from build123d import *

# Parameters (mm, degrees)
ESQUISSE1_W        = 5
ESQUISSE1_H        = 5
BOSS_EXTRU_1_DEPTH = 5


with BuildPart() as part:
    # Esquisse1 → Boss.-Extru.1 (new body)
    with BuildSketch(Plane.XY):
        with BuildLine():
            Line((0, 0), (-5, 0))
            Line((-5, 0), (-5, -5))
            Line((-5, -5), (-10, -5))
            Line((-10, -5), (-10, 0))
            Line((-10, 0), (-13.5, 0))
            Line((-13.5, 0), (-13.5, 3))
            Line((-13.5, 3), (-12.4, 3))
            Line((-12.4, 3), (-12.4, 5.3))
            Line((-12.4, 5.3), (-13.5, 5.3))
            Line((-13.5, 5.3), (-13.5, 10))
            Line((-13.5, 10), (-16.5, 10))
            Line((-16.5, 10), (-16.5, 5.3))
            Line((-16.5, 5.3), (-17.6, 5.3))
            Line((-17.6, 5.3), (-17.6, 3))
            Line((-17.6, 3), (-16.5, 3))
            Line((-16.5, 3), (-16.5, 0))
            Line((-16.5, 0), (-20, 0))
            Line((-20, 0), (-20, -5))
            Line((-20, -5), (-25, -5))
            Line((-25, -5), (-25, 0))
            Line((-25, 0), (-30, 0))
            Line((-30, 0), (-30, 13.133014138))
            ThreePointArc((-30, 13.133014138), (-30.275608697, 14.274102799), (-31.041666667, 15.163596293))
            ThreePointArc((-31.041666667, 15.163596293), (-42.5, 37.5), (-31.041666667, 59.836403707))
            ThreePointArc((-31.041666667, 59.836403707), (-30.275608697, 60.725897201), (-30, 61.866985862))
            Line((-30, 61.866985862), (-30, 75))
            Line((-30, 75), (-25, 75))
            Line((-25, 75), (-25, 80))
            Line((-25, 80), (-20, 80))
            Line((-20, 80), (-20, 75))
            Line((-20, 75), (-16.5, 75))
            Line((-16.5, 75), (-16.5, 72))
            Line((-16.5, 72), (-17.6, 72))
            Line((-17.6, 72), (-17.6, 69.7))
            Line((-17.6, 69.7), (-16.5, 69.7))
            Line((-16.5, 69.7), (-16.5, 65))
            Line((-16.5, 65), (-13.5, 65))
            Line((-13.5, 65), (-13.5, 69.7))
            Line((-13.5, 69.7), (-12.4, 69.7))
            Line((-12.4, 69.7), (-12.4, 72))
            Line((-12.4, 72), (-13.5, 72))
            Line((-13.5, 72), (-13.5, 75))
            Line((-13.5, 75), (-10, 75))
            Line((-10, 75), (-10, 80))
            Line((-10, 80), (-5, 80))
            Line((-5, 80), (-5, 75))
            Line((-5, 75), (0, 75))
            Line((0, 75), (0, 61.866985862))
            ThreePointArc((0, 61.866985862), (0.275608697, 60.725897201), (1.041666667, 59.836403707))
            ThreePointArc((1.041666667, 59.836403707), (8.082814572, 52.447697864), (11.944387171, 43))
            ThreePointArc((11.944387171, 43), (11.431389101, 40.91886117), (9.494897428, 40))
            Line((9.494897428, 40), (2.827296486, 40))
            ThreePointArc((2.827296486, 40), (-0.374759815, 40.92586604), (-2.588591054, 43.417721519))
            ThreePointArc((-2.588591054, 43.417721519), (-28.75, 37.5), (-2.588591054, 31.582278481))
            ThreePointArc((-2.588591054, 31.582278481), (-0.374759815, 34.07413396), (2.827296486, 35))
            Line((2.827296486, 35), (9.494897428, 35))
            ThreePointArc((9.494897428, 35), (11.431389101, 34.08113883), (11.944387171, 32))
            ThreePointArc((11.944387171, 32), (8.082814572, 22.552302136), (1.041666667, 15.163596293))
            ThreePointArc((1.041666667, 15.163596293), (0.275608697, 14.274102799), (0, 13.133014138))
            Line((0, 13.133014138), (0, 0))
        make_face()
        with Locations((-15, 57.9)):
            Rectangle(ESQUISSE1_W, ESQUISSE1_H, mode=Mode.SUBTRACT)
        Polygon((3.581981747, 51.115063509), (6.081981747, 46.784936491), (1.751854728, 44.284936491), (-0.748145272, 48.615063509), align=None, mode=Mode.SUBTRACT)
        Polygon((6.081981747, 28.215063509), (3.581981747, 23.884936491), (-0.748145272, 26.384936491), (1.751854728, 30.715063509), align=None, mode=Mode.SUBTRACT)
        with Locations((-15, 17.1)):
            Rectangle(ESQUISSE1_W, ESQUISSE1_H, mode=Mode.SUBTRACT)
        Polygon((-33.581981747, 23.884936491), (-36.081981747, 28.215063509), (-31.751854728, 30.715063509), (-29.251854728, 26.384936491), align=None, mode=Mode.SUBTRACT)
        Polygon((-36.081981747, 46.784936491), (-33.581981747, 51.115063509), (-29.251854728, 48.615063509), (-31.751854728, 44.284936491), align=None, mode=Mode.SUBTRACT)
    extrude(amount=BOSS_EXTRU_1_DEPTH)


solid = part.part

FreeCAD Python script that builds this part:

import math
import FreeCAD as App
import Part
import Sketcher

V = App.Vector
Q = App.Units.Quantity

doc = App.newDocument("Part")
body = doc.addObject("PartDesign::Body", "Body")

# Sketch on XY plane
sketch1 = body.newObject("Sketcher::SketchObject", "Sketch")
sketch1.AttachmentSupport = (doc.getObject("XY_Plane"), [""])
sketch1.MapMode = "FlatFace"
sketch1.addGeometry([
    Part.LineSegment(V(-5, 0, 0), V(0, 0, 0)),  # 0
    Part.LineSegment(V(0, 0, 0), V(0, 13.133014, 0)),  # 1
    Part.ArcOfCircle(Part.Circle(V(2.5, 13.133014, 0), V(0, 0, 1), 2.5), math.radians(125.685335), math.radians(180)),  # 2
    Part.ArcOfCircle(Part.Circle(V(-15, 37.5, 0), V(0, 0, 1), 27.5), math.radians(-54.314665), math.radians(-11.536959)),  # 3
    Part.ArcOfCircle(Part.Circle(V(9.494897, 32.5, 0), V(0, 0, 1), 2.5), math.radians(-11.536959), math.radians(90)),  # 4
    Part.LineSegment(V(9.494897, 35, 0), V(2.827296, 35, 0)),  # 5
    Part.ArcOfCircle(Part.Circle(V(2.827296, 29, 0), V(0, 0, 1), 6), math.radians(90), math.radians(154.508338)),  # 6
    Part.ArcOfCircle(Part.Circle(V(-15, 37.5, 0), V(0, 0, 1), 13.75), math.radians(25.491662), math.radians(334.508338)),  # 7
    Part.ArcOfCircle(Part.Circle(V(2.827296, 46, 0), V(0, 0, 1), 6), math.radians(-154.508338), math.radians(-90)),  # 8
    Part.LineSegment(V(2.827296, 40, 0), V(9.494897, 40, 0)),  # 9
    Part.ArcOfCircle(Part.Circle(V(9.494897, 42.5, 0), V(0, 0, 1), 2.5), math.radians(-90), math.radians(11.536959)),  # 10
    Part.ArcOfCircle(Part.Circle(V(-15, 37.5, 0), V(0, 0, 1), 27.5), math.radians(11.536959), math.radians(54.314665)),  # 11
    Part.ArcOfCircle(Part.Circle(V(2.5, 61.866986, 0), V(0, 0, 1), 2.5), math.radians(180), math.radians(234.314665)),  # 12
    Part.LineSegment(V(0, 61.866986, 0), V(0, 75, 0)),  # 13
    Part.LineSegment(V(0, 75, 0), V(-5, 75, 0)),  # 14
    Part.LineSegment(V(-5, 75, 0), V(-5, 80, 0)),  # 15
    Part.LineSegment(V(-5, 80, 0), V(-10, 80, 0)),  # 16
    Part.LineSegment(V(-10, 80, 0), V(-10, 75, 0)),  # 17
    Part.LineSegment(V(-10, 75, 0), V(-13.5, 75, 0)),  # 18
    Part.LineSegment(V(-13.5, 75, 0), V(-13.5, 72, 0)),  # 19
    Part.LineSegment(V(-13.5, 72, 0), V(-12.4, 72, 0)),  # 20
    Part.LineSegment(V(-12.4, 72, 0), V(-12.4, 69.7, 0)),  # 21
    Part.LineSegment(V(-12.4, 69.7, 0), V(-13.5, 69.7, 0)),  # 22
    Part.LineSegment(V(-13.5, 69.7, 0), V(-13.5, 65, 0)),  # 23
    Part.LineSegment(V(-13.5, 65, 0), V(-16.5, 65, 0)),  # 24
    Part.LineSegment(V(-16.5, 65, 0), V(-16.5, 69.7, 0)),  # 25
    Part.LineSegment(V(-16.5, 69.7, 0), V(-17.6, 69.7, 0)),  # 26
    Part.LineSegment(V(-17.6, 69.7, 0), V(-17.6, 72, 0)),  # 27
    Part.LineSegment(V(-17.6, 72, 0), V(-16.5, 72, 0)),  # 28
    Part.LineSegment(V(-16.5, 72, 0), V(-16.5, 75, 0)),  # 29
    Part.LineSegment(V(-16.5, 75, 0), V(-20, 75, 0)),  # 30
    Part.LineSegment(V(-20, 75, 0), V(-20, 80, 0)),  # 31
    Part.LineSegment(V(-20, 80, 0), V(-25, 80, 0)),  # 32
    Part.LineSegment(V(-25, 80, 0), V(-25, 75, 0)),  # 33
    Part.LineSegment(V(-25, 75, 0), V(-30, 75, 0)),  # 34
    Part.LineSegment(V(-30, 75, 0), V(-30, 61.866986, 0)),  # 35
    Part.ArcOfCircle(Part.Circle(V(-32.5, 61.866986, 0), V(0, 0, 1), 2.5), math.radians(-54.314665), math.radians(0)),  # 36
    Part.ArcOfCircle(Part.Circle(V(-15, 37.5, 0), V(0, 0, 1), 27.5), math.radians(125.685335), math.radians(234.314665)),  # 37
    Part.ArcOfCircle(Part.Circle(V(-32.5, 13.133014, 0), V(0, 0, 1), 2.5), math.radians(0), math.radians(54.314665)),  # 38
    Part.LineSegment(V(-30, 13.133014, 0), V(-30, 0, 0)),  # 39
    Part.LineSegment(V(-30, 0, 0), V(-25, 0, 0)),  # 40
    Part.LineSegment(V(-25, 0, 0), V(-25, -5, 0)),  # 41
    Part.LineSegment(V(-25, -5, 0), V(-20, -5, 0)),  # 42
    Part.LineSegment(V(-20, -5, 0), V(-20, 0, 0)),  # 43
    Part.LineSegment(V(-20, 0, 0), V(-16.5, 0, 0)),  # 44
    Part.LineSegment(V(-16.5, 0, 0), V(-16.5, 3, 0)),  # 45
    Part.LineSegment(V(-16.5, 3, 0), V(-17.6, 3, 0)),  # 46
    Part.LineSegment(V(-17.6, 3, 0), V(-17.6, 5.3, 0)),  # 47
    Part.LineSegment(V(-17.6, 5.3, 0), V(-16.5, 5.3, 0)),  # 48
    Part.LineSegment(V(-16.5, 5.3, 0), V(-16.5, 10, 0)),  # 49
    Part.LineSegment(V(-16.5, 10, 0), V(-13.5, 10, 0)),  # 50
    Part.LineSegment(V(-13.5, 10, 0), V(-13.5, 5.3, 0)),  # 51
    Part.LineSegment(V(-13.5, 5.3, 0), V(-12.4, 5.3, 0)),  # 52
    Part.LineSegment(V(-12.4, 5.3, 0), V(-12.4, 3, 0)),  # 53
    Part.LineSegment(V(-12.4, 3, 0), V(-13.5, 3, 0)),  # 54
    Part.LineSegment(V(-13.5, 3, 0), V(-13.5, 0, 0)),  # 55
    Part.LineSegment(V(-13.5, 0, 0), V(-10, 0, 0)),  # 56
    Part.LineSegment(V(-10, 0, 0), V(-10, -5, 0)),  # 57
    Part.LineSegment(V(-10, -5, 0), V(-5, -5, 0)),  # 58
    Part.LineSegment(V(-5, -5, 0), V(-5, 0, 0)),  # 59
    Part.LineSegment(V(6.081982, 28.215064, 0), V(3.581982, 23.884936, 0)),  # 60
    Part.LineSegment(V(3.581982, 23.884936, 0), V(-0.748145, 26.384936, 0)),  # 61
    Part.LineSegment(V(-0.748145, 26.384936, 0), V(1.751855, 30.715064, 0)),  # 62
    Part.LineSegment(V(1.751855, 30.715064, 0), V(6.081982, 28.215064, 0)),  # 63
    Part.LineSegment(V(-17.5, 14.6, 0), V(-17.5, 19.6, 0)),  # 64
    Part.LineSegment(V(-17.5, 19.6, 0), V(-12.5, 19.6, 0)),  # 65
    Part.LineSegment(V(-12.5, 19.6, 0), V(-12.5, 14.6, 0)),  # 66
    Part.LineSegment(V(-12.5, 14.6, 0), V(-17.5, 14.6, 0)),  # 67
    Part.LineSegment(V(-33.581982, 23.884936, 0), V(-36.081982, 28.215064, 0)),  # 68
    Part.LineSegment(V(-36.081982, 28.215064, 0), V(-31.751855, 30.715064, 0)),  # 69
    Part.LineSegment(V(-31.751855, 30.715064, 0), V(-29.251855, 26.384936, 0)),  # 70
    Part.LineSegment(V(-29.251855, 26.384936, 0), V(-33.581982, 23.884936, 0)),  # 71
    Part.LineSegment(V(3.581982, 51.115064, 0), V(6.081982, 46.784936, 0)),  # 72
    Part.LineSegment(V(6.081982, 46.784936, 0), V(1.751855, 44.284936, 0)),  # 73
    Part.LineSegment(V(1.751855, 44.284936, 0), V(-0.748145, 48.615064, 0)),  # 74
    Part.LineSegment(V(-0.748145, 48.615064, 0), V(3.581982, 51.115064, 0)),  # 75
    Part.LineSegment(V(-36.081982, 46.784936, 0), V(-33.581982, 51.115064, 0)),  # 76
    Part.LineSegment(V(-33.581982, 51.115064, 0), V(-29.251855, 48.615064, 0)),  # 77
    Part.LineSegment(V(-29.251855, 48.615064, 0), V(-31.751855, 44.284936, 0)),  # 78
    Part.LineSegment(V(-31.751855, 44.284936, 0), V(-36.081982, 46.784936, 0)),  # 79
    Part.LineSegment(V(-17.5, 55.4, 0), V(-17.5, 60.4, 0)),  # 80
    Part.LineSegment(V(-17.5, 60.4, 0), V(-12.5, 60.4, 0)),  # 81
    Part.LineSegment(V(-12.5, 60.4, 0), V(-12.5, 55.4, 0)),  # 82
    Part.LineSegment(V(-12.5, 55.4, 0), V(-17.5, 55.4, 0)),  # 83
], False)
sketch1.addConstraint([
    Sketcher.Constraint("Coincident", 0, 2, 1, 1),
    Sketcher.Constraint("Tangent", 1, 2, 2, 2),
    Sketcher.Constraint("Tangent", 2, 1, 3, 1),
    Sketcher.Constraint("Tangent", 3, 2, 4, 1),
    Sketcher.Constraint("Tangent", 4, 2, 5, 1),
    Sketcher.Constraint("Tangent", 5, 2, 6, 1),
    Sketcher.Constraint("Tangent", 6, 2, 7, 2),
    Sketcher.Constraint("Tangent", 7, 1, 8, 1),
    Sketcher.Constraint("Tangent", 8, 2, 9, 1),
    Sketcher.Constraint("Tangent", 9, 2, 10, 1),
    Sketcher.Constraint("Tangent", 10, 2, 11, 1),
    Sketcher.Constraint("Tangent", 11, 2, 12, 2),
    Sketcher.Constraint("Tangent", 12, 1, 13, 1),
    Sketcher.Constraint("Coincident", 13, 2, 14, 1),
    Sketcher.Constraint("Coincident", 14, 2, 15, 1),
    Sketcher.Constraint("Coincident", 15, 2, 16, 1),
    Sketcher.Constraint("Coincident", 16, 2, 17, 1),
    Sketcher.Constraint("Coincident", 17, 2, 18, 1),
    Sketcher.Constraint("Coincident", 18, 2, 19, 1),
    Sketcher.Constraint("Coincident", 19, 2, 20, 1),
    Sketcher.Constraint("Coincident", 20, 2, 21, 1),
    Sketcher.Constraint("Coincident", 21, 2, 22, 1),
    Sketcher.Constraint("Coincident", 22, 2, 23, 1),
    Sketcher.Constraint("Coincident", 23, 2, 24, 1),
    Sketcher.Constraint("Coincident", 24, 2, 25, 1),
    Sketcher.Constraint("Coincident", 25, 2, 26, 1),
    Sketcher.Constraint("Coincident", 26, 2, 27, 1),
    Sketcher.Constraint("Coincident", 27, 2, 28, 1),
    Sketcher.Constraint("Coincident", 28, 2, 29, 1),
    Sketcher.Constraint("Coincident", 29, 2, 30, 1),
    Sketcher.Constraint("Coincident", 30, 2, 31, 1),
    Sketcher.Constraint("Coincident", 31, 2, 32, 1),
    Sketcher.Constraint("Coincident", 32, 2, 33, 1),
    Sketcher.Constraint("Coincident", 33, 2, 34, 1),
    Sketcher.Constraint("Coincident", 34, 2, 35, 1),
    Sketcher.Constraint("Tangent", 35, 2, 36, 2),
    Sketcher.Constraint("Tangent", 36, 1, 37, 1),
    Sketcher.Constraint("Tangent", 37, 2, 38, 2),
    Sketcher.Constraint("Tangent", 38, 1, 39, 1),
    Sketcher.Constraint("Coincident", 39, 2, 40, 1),
    Sketcher.Constraint("Coincident", 40, 2, 41, 1),
    Sketcher.Constraint("Coincident", 41, 2, 42, 1),
    Sketcher.Constraint("Coincident", 42, 2, 43, 1),
    Sketcher.Constraint("Coincident", 43, 2, 44, 1),
    Sketcher.Constraint("Coincident", 44, 2, 45, 1),
    Sketcher.Constraint("Coincident", 45, 2, 46, 1),
    Sketcher.Constraint("Coincident", 46, 2, 47, 1),
    Sketcher.Constraint("Coincident", 47, 2, 48, 1),
    Sketcher.Constraint("Coincident", 48, 2, 49, 1),
    Sketcher.Constraint("Coincident", 49, 2, 50, 1),
    Sketcher.Constraint("Coincident", 50, 2, 51, 1),
    Sketcher.Constraint("Coincident", 51, 2, 52, 1),
    Sketcher.Constraint("Coincident", 52, 2, 53, 1),
    Sketcher.Constraint("Coincident", 53, 2, 54, 1),
    Sketcher.Constraint("Coincident", 54, 2, 55, 1),
    Sketcher.Constraint("Coincident", 55, 2, 56, 1),
    Sketcher.Constraint("Coincident", 56, 2, 57, 1),
    Sketcher.Constraint("Coincident", 57, 2, 58, 1),
    Sketcher.Constraint("Coincident", 58, 2, 59, 1),
    Sketcher.Constraint("Coincident", 59, 2, 0, 1),
    Sketcher.Constraint("Coincident", 60, 2, 61, 1),
    Sketcher.Constraint("Coincident", 61, 2, 62, 1),
    Sketcher.Constraint("Coincident", 62, 2, 63, 1),
    Sketcher.Constraint("Coincident", 63, 2, 60, 1),
    Sketcher.Constraint("Coincident", 64, 2, 65, 1),
    Sketcher.Constraint("Coincident", 65, 2, 66, 1),
    Sketcher.Constraint("Coincident", 66, 2, 67, 1),
    Sketcher.Constraint("Coincident", 67, 2, 64, 1),
    Sketcher.Constraint("Coincident", 68, 2, 69, 1),
    Sketcher.Constraint("Coincident", 69, 2, 70, 1),
    Sketcher.Constraint("Coincident", 70, 2, 71, 1),
    Sketcher.Constraint("Coincident", 71, 2, 68, 1),
    Sketcher.Constraint("Coincident", 72, 2, 73, 1),
    Sketcher.Constraint("Coincident", 73, 2, 74, 1),
    Sketcher.Constraint("Coincident", 74, 2, 75, 1),
    Sketcher.Constraint("Coincident", 75, 2, 72, 1),
    Sketcher.Constraint("Coincident", 76, 2, 77, 1),
    Sketcher.Constraint("Coincident", 77, 2, 78, 1),
    Sketcher.Constraint("Coincident", 78, 2, 79, 1),
    Sketcher.Constraint("Coincident", 79, 2, 76, 1),
    Sketcher.Constraint("Coincident", 80, 2, 81, 1),
    Sketcher.Constraint("Coincident", 81, 2, 82, 1),
    Sketcher.Constraint("Coincident", 82, 2, 83, 1),
    Sketcher.Constraint("Coincident", 83, 2, 80, 1),
    Sketcher.Constraint("Horizontal", 0),
    Sketcher.Constraint("Vertical", 1),
    Sketcher.Constraint("Horizontal", 5),
    Sketcher.Constraint("Horizontal", 9),
    Sketcher.Constraint("Vertical", 13),
    Sketcher.Constraint("Horizontal", 14),
    Sketcher.Constraint("Vertical", 15),
    Sketcher.Constraint("Horizontal", 16),
    Sketcher.Constraint("Vertical", 17),
    Sketcher.Constraint("Horizontal", 18),
    Sketcher.Constraint("Vertical", 19),
    Sketcher.Constraint("Horizontal", 20),
    Sketcher.Constraint("Vertical", 21),
    Sketcher.Constraint("Horizontal", 22),
    Sketcher.Constraint("Vertical", 23),
    Sketcher.Constraint("Horizontal", 24),
    Sketcher.Constraint("Vertical", 25),
    Sketcher.Constraint("Horizontal", 26),
    Sketcher.Constraint("Vertical", 27),
    Sketcher.Constraint("Horizontal", 28),
    Sketcher.Constraint("Vertical", 29),
    Sketcher.Constraint("Horizontal", 30),
    Sketcher.Constraint("Vertical", 31),
    Sketcher.Constraint("Horizontal", 32),
    Sketcher.Constraint("Vertical", 33),
    Sketcher.Constraint("Horizontal", 34),
    Sketcher.Constraint("Vertical", 35),
    Sketcher.Constraint("Vertical", 39),
    Sketcher.Constraint("Horizontal", 40),
    Sketcher.Constraint("Vertical", 41),
    Sketcher.Constraint("Horizontal", 42),
    Sketcher.Constraint("Vertical", 43),
    Sketcher.Constraint("Horizontal", 44),
    Sketcher.Constraint("Vertical", 45),
    Sketcher.Constraint("Horizontal", 46),
    Sketcher.Constraint("Vertical", 47),
    Sketcher.Constraint("Horizontal", 48),
    Sketcher.Constraint("Vertical", 49),
    Sketcher.Constraint("Horizontal", 50),
    Sketcher.Constraint("Vertical", 51),
    Sketcher.Constraint("Horizontal", 52),
    Sketcher.Constraint("Vertical", 53),
    Sketcher.Constraint("Horizontal", 54),
    Sketcher.Constraint("Vertical", 55),
    Sketcher.Constraint("Horizontal", 56),
    Sketcher.Constraint("Vertical", 57),
    Sketcher.Constraint("Horizontal", 58),
    Sketcher.Constraint("Vertical", 59),
    Sketcher.Constraint("Vertical", 64),
    Sketcher.Constraint("Horizontal", 65),
    Sketcher.Constraint("Vertical", 66),
    Sketcher.Constraint("Horizontal", 67),
    Sketcher.Constraint("Vertical", 80),
    Sketcher.Constraint("Horizontal", 81),
    Sketcher.Constraint("Vertical", 82),
    Sketcher.Constraint("Horizontal", 83),
    Sketcher.Constraint("Coincident", 0, 2, -1, 1),
    Sketcher.Constraint("Coincident", 7, 3, 3, 3),
    Sketcher.Constraint("Coincident", 11, 3, 3, 3),
    Sketcher.Constraint("Coincident", 37, 3, 3, 3),
    Sketcher.Constraint("Equal", 2, 4),
    Sketcher.Constraint("Equal", 6, 8),
    Sketcher.Constraint("Equal", 4, 10),
    Sketcher.Constraint("Equal", 3, 11),
    Sketcher.Constraint("Equal", 10, 12),
    Sketcher.Constraint("Equal", 12, 36),
    Sketcher.Constraint("Equal", 11, 37),
    Sketcher.Constraint("Equal", 36, 38),
    Sketcher.Constraint("PointOnObject", 12, 1, -2),
    Sketcher.Constraint("PointOnObject", 39, 2, -1),
    Sketcher.Constraint("PointOnObject", 43, 2, -1),
    Sketcher.Constraint("PointOnObject", 55, 2, -1),
    Sketcher.Constraint("Perpendicular", 60, 61),
    Sketcher.Constraint("Perpendicular", 61, 62),
    Sketcher.Constraint("Perpendicular", 62, 63),
    Sketcher.Constraint("Perpendicular", 68, 69),
    Sketcher.Constraint("Perpendicular", 69, 70),
    Sketcher.Constraint("Perpendicular", 70, 71),
    Sketcher.Constraint("Perpendicular", 71, 72),
    Sketcher.Constraint("Perpendicular", 72, 73),
    Sketcher.Constraint("Perpendicular", 73, 74),
    Sketcher.Constraint("Perpendicular", 74, 75),
    Sketcher.Constraint("Perpendicular", 63, 76),
    Sketcher.Constraint("Perpendicular", 76, 77),
    Sketcher.Constraint("Perpendicular", 77, 78),
    Sketcher.Constraint("Perpendicular", 78, 79),
    Sketcher.Constraint("Horizontal", 12, 3, 36, 3),
    Sketcher.Constraint("Horizontal", 2, 3, 38, 3),
    Sketcher.Constraint("Horizontal", 14, 2, 17, 2),
    Sketcher.Constraint("Horizontal", 22, 2, 25, 2),
    Sketcher.Constraint("Horizontal", 20, 2, 27, 2),
    Sketcher.Constraint("Horizontal", 18, 2, 29, 2),
    Sketcher.Constraint("Horizontal", 16, 2, 31, 2),
    Sketcher.Constraint("Horizontal", 30, 2, 33, 2),
    Sketcher.Constraint("Horizontal", 48, 2, 51, 2),
    Sketcher.Constraint("Horizontal", 46, 2, 53, 2),
    Sketcher.Constraint("Horizontal", 42, 2, 57, 2),
    Sketcher.Constraint("Horizontal", 63, 2, 68, 2),
    Sketcher.Constraint("Horizontal", 62, 2, 69, 2),
    Sketcher.Constraint("Horizontal", 61, 2, 70, 2),
    Sketcher.Constraint("Horizontal", 75, 2, 76, 2),
    Sketcher.Constraint("Horizontal", 74, 2, 77, 2),
    Sketcher.Constraint("Horizontal", 73, 2, 78, 2),
    Sketcher.Constraint("Vertical", 6, 3, 8, 3),
    Sketcher.Constraint("Vertical", 19, 2, 22, 2),
    Sketcher.Constraint("Vertical", 25, 2, 28, 2),
    Sketcher.Constraint("Vertical", 33, 2, 40, 2),
    Sketcher.Constraint("Vertical", 31, 2, 42, 2),
    Sketcher.Constraint("Vertical", 29, 2, 44, 2),
    Sketcher.Constraint("Vertical", 27, 2, 46, 2),
    Sketcher.Constraint("Vertical", 45, 2, 48, 2),
    Sketcher.Constraint("Vertical", 23, 2, 50, 2),
    Sketcher.Constraint("Vertical", 21, 2, 52, 2),
    Sketcher.Constraint("Vertical", 51, 2, 54, 2),
    Sketcher.Constraint("Vertical", 17, 2, 56, 2),
    Sketcher.Constraint("Vertical", 15, 2, 58, 2),
    Sketcher.Constraint("Vertical", 63, 2, 72, 2),
    Sketcher.Constraint("Vertical", 62, 2, 73, 2),
    Sketcher.Constraint("Vertical", 61, 2, 74, 2),
    Sketcher.Constraint("Vertical", 71, 2, 76, 2),
    Sketcher.Constraint("Vertical", 70, 2, 77, 2),
    Sketcher.Constraint("Vertical", 67, 2, 80, 2),
    Sketcher.Constraint("Vertical", 66, 2, 81, 2),
    Sketcher.Constraint("Equal", 14, 16),
    Sketcher.Constraint("Equal", 22, 26),
    Sketcher.Constraint("Equal", 18, 30),
    Sketcher.Constraint("Equal", 16, 32),
    Sketcher.Constraint("Equal", 32, 34),
    Sketcher.Constraint("Equal", 58, 65),
    Sketcher.Constraint("Equal", 1, 13),
    Sketcher.Constraint("Equal", 83, 15),
    Sketcher.Constraint("Equal", 50, 19),
    Sketcher.Constraint("Equal", 33, 41),
    Sketcher.Constraint("Equal", 29, 45),
    Sketcher.Constraint("Equal", 27, 47),
    Sketcher.Constraint("Equal", 25, 49),
    Sketcher.Constraint("Equal", 59, 64),
    Sketcher.Constraint("Equal", 66, 80),
    Sketcher.Constraint("Equal", 60, 61),
    Sketcher.Constraint("Radius", 6, 6.0),
    Sketcher.Constraint("Radius", 2, 2.5),
    Sketcher.Constraint("Radius", 3, 27.5),
    Sketcher.Constraint("DistanceX", 0, 1, 0, 2, 5.0),
    Sketcher.Constraint("DistanceX", 24, 2, 24, 1, 3.0),
    Sketcher.Constraint("Angle", 60, Q("-120 deg")),
    Sketcher.Constraint("Radius", 7, 13.75),
    Sketcher.Constraint("Distance", 60, 5.0),
    Sketcher.Constraint("DistanceX", 18, 2, 18, 1, 3.5),
    Sketcher.Constraint("DistanceX", 20, 1, 20, 2, 1.1),
    Sketcher.Constraint("DistanceY", 21, 2, 21, 1, 2.3),
    Sketcher.Constraint("DistanceY", 23, 2, 23, 1, 4.7),
    Sketcher.Constraint("DistanceY", -1, 1, 6, 3, 29.0),
    Sketcher.Constraint("DistanceY", -1, 1, 8, 3, 46.0),
    Sketcher.Constraint("DistanceX", 64, 2, -1, 1, 17.5),
    Sketcher.Constraint("DistanceY", -1, 1, 64, 2, 19.6),
    Sketcher.Constraint("DistanceY", -1, 1, 80, 2, 60.4),
    Sketcher.Constraint("DistanceX", -1, 1, 60, 2, 3.581982),
    Sketcher.Constraint("DistanceX", 68, 2, -1, 1, 36.081982),
    Sketcher.Constraint("DistanceY", -1, 1, 60, 2, 23.884936),
    Sketcher.Constraint("DistanceY", -1, 1, 72, 2, 46.784936),
])
pad1 = body.newObject("PartDesign::Pad", "Pad")
pad1.Profile = sketch1
pad1.Length = 5

doc.recompute()
